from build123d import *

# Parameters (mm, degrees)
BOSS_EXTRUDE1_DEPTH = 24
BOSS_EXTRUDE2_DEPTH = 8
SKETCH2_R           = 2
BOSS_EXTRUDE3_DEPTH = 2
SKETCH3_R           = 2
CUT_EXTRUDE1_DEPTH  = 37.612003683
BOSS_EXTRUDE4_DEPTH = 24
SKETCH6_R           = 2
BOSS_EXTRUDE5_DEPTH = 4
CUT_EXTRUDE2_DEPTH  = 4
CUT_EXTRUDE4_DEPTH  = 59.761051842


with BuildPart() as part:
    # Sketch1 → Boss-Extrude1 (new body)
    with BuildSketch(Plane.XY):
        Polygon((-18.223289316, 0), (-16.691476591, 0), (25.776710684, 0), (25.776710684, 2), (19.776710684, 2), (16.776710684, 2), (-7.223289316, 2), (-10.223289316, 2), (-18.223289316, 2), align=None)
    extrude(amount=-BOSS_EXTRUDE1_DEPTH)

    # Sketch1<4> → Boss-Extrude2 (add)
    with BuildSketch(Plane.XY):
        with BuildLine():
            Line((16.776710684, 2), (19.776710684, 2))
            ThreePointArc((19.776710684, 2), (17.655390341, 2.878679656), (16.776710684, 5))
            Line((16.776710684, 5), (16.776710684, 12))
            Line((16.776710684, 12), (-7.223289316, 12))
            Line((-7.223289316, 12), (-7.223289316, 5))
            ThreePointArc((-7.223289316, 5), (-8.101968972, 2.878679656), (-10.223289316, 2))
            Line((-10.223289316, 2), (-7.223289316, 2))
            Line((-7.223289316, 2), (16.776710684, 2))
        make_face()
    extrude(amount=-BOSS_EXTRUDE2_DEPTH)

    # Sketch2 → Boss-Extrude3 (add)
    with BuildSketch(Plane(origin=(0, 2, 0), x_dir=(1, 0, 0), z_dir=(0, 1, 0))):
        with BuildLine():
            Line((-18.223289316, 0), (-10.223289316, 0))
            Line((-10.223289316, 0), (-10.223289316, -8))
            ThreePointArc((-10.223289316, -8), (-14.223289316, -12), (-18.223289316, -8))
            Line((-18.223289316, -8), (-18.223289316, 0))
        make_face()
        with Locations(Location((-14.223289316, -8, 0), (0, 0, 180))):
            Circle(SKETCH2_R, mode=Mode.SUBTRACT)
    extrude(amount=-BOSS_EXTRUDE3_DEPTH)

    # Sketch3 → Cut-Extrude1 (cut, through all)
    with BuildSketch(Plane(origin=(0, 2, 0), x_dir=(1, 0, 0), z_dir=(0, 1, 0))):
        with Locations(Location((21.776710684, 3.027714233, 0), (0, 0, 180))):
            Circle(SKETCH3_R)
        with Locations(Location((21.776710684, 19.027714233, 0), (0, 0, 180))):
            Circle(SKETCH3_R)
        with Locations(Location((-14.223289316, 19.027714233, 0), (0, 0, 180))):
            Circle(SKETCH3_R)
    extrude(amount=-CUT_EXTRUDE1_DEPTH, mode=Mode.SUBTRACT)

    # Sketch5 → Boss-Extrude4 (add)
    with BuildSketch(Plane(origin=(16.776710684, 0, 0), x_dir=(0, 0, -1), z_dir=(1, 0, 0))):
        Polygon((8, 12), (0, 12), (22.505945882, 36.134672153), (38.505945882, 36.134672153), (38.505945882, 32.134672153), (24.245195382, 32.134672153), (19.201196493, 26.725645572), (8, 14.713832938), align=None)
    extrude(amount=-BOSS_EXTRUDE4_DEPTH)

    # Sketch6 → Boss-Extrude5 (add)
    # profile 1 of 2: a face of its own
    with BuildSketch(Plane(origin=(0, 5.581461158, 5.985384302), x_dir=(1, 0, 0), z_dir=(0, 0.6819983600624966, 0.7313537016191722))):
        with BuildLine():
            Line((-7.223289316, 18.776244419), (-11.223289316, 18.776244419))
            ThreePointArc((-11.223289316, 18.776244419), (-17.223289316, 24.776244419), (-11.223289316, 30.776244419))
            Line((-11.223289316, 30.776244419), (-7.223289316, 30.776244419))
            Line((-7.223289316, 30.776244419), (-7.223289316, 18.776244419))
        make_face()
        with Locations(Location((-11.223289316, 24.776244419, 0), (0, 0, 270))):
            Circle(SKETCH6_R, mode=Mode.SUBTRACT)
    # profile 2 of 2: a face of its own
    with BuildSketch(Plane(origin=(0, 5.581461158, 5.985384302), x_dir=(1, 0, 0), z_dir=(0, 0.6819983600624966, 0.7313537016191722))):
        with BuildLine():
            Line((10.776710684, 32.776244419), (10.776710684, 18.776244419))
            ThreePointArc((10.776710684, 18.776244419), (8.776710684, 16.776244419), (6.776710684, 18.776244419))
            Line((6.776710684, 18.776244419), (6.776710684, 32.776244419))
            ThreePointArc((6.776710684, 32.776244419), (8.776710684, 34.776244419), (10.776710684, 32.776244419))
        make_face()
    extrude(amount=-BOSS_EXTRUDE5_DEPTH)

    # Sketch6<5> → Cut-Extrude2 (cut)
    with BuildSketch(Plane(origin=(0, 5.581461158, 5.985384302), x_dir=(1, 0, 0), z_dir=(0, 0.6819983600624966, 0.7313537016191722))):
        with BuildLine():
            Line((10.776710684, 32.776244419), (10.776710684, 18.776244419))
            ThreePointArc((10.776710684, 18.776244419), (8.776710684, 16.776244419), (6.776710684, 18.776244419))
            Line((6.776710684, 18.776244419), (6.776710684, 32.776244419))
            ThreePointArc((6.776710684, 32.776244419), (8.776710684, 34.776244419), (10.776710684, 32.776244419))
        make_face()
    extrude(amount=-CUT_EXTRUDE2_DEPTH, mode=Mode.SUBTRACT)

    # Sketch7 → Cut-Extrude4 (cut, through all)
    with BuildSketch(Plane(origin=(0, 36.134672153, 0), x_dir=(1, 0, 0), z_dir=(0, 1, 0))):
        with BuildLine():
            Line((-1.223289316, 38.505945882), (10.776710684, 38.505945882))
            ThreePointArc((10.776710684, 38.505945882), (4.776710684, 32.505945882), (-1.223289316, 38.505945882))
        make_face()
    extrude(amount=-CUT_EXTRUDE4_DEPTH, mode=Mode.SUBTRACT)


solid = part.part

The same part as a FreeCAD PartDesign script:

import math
import FreeCAD as App
import Part
import Sketcher
Q = App.Units.Quantity

doc = App.newDocument("Part")
body = doc.addObject("PartDesign::Body", "Body")

# Sketch on XY plane
sketch1 = body.newObject("Sketcher::SketchObject", "Sketch")
sketch1.AttachmentSupport = (doc.getObject("XY_Plane"), [""])
sketch1.MapMode = "FlatFace"
sketch1.addGeometry(Part.LineSegment(App.Vector(-18.223289, 0, 0), App.Vector(25.776711, 0, 0)), False)
sketch1.addGeometry(Part.LineSegment(App.Vector(25.776711, 0, 0), App.Vector(25.776711, 2, 0)), False)
sketch1.addGeometry(Part.LineSegment(App.Vector(25.776711, 2, 0), App.Vector(-18.223289, 2, 0)), False)
sketch1.addGeometry(Part.LineSegment(App.Vector(-18.223289, 2, 0), App.Vector(-18.223289, 0, 0)), False)
sketch1.addConstraint(Sketcher.Constraint("Coincident", 0, 2, 1, 1))
sketch1.addConstraint(Sketcher.Constraint("Coincident", 1, 2, 2, 1))
sketch1.addConstraint(Sketcher.Constraint("Coincident", 2, 2, 3, 1))
sketch1.addConstraint(Sketcher.Constraint("Coincident", 3, 2, 0, 1))
sketch1.addConstraint(Sketcher.Constraint("Horizontal", 0))
sketch1.addConstraint(Sketcher.Constraint("Vertical", 1))
sketch1.addConstraint(Sketcher.Constraint("Horizontal", 2))
sketch1.addConstraint(Sketcher.Constraint("Vertical", 3))
sketch1.addConstraint(Sketcher.Constraint("PointOnObject", 0, 2, -1))
sketch1.addConstraint(Sketcher.Constraint("DistanceX", 0, 1, 0, 2, Q("44 mm")))
sketch1.addConstraint(Sketcher.Constraint("DistanceY", 1, 1, 1, 2, Q("2 mm")))
sketch1.addConstraint(Sketcher.Constraint("DistanceX", -1, 1, 0, 2, Q("25.776711 mm")))
pad1 = body.newObject("PartDesign::Pad", "Pad")
pad1.Profile = sketch1
pad1.Length = 24
pad1.Reversed = True

# Sketch on XY plane
sketch2 = body.newObject("Sketcher::SketchObject", "Sketch001")
sketch2.AttachmentSupport = (doc.getObject("XY_Plane"), [""])
sketch2.MapMode = "FlatFace"
sketch2.addGeometry(Part.ArcOfCircle(Part.Circle(App.Vector(19.776711, 5, 0), App.Vector(0, 0, 1), 3), math.radians(180), math.radians(270)), False)
sketch2.addGeometry(Part.LineSegment(App.Vector(16.776711, 5, 0), App.Vector(16.776711, 12, 0)), False)
sketch2.addGeometry(Part.LineSegment(App.Vector(16.776711, 12, 0), App.Vector(-7.223289, 12, 0)), False)
sketch2.addGeometry(Part.LineSegment(App.Vector(-7.223289, 12, 0), App.Vector(-7.223289, 5, 0)), False)
sketch2.addGeometry(Part.ArcOfCircle(Part.Circle(App.Vector(-10.223289, 5, 0), App.Vector(0, 0, 1), 3), math.radians(-90), math.radians(0)), False)
sketch2.addGeometry(Part.LineSegment(App.Vector(-10.223289, 2, 0), App.Vector(19.776711, 2, 0)), False)
sketch2.addConstraint(Sketcher.Constraint("Tangent", 0, 1, 1, 1))
sketch2.addConstraint(Sketcher.Constraint("Coincident", 1, 2, 2, 1))
sketch2.addConstraint(Sketcher.Constraint("Coincident", 2, 2, 3, 1))
sketch2.addConstraint(Sketcher.Constraint("Tangent", 3, 2, 4, 2))
sketch2.addConstraint(Sketcher.Constraint("Tangent", 4, 1, 5, 1))
sketch2.addConstraint(Sketcher.Constraint("Tangent", 5, 2, 0, 2))
sketch2.addConstraint(Sketcher.Constraint("Vertical", 1))
sketch2.addConstraint(Sketcher.Constraint("Horizontal", 2))
sketch2.addConstraint(Sketcher.Constraint("Vertical", 3))
sketch2.addConstraint(Sketcher.Constraint("Horizontal", 5))
sketch2.addConstraint(Sketcher.Constraint("Equal", 0, 4))
sketch2.addConstraint(Sketcher.Constraint("Radius", 0, Q("3 mm")))
sketch2.addConstraint(Sketcher.Constraint("DistanceX", 2, 2, 2, 1, Q("24 mm")))
sketch2.addConstraint(Sketcher.Constraint("DistanceY", 1, 1, 1, 2, Q("7 mm")))
sketch2.addConstraint(Sketcher.Constraint("DistanceY", -1, 1, 0, 3, Q("5 mm")))
sketch2.addConstraint(Sketcher.Constraint("DistanceX", -1, 1, 0, 3, Q("19.776711 mm")))
pad2 = body.newObject("PartDesign::Pad", "Pad001")
pad2.Profile = sketch2
pad2.Length = 8
pad2.Reversed = True

# Sketch on XZ plane
sketch3 = body.newObject("Sketcher::SketchObject", "Sketch002")
sketch3.AttachmentSupport = (doc.getObject("XZ_Plane"), [""])
sketch3.MapMode = "FlatFace"
sketch3.AttachmentOffset = App.Placement(App.Vector(0, 0, -2), App.Rotation())
sketch3.addGeometry(Part.LineSegment(App.Vector(-10.223289, 0, 0), App.Vector(-18.223289, 0, 0)), False)
sketch3.addGeometry(Part.LineSegment(App.Vector(-18.223289, 0, 0), App.Vector(-18.223289, 8, 0)), False)
sketch3.addGeometry(Part.ArcOfCircle(Part.Circle(App.Vector(-14.223289, 8, 0), App.Vector(0, 0, 1), 4), math.radians(0), math.radians(180)), False)
sketch3.addGeometry(Part.LineSegment(App.Vector(-10.223289, 8, 0), App.Vector(-10.223289, 0, 0)), False)
sketch3.addGeometry(Part.Circle(App.Vector(-14.223289, 8, 0), App.Vector(0, 0, 1), 2), False)
sketch3.addConstraint(Sketcher.Constraint("Coincident", 0, 2, 1, 1))
sketch3.addConstraint(Sketcher.Constraint("Tangent", 1, 2, 2, 2))
sketch3.addConstraint(Sketcher.Constraint("Tangent", 2, 1, 3, 1))
sketch3.addConstraint(Sketcher.Constraint("Coincident", 3, 2, 0, 1))
sketch3.addConstraint(Sketcher.Constraint("Horizontal", 0))
sketch3.addConstraint(Sketcher.Constraint("Vertical", 1))
sketch3.addConstraint(Sketcher.Constraint("Vertical", 3))
sketch3.addConstraint(Sketcher.Constraint("Coincident", 4, 3, 2, 3))
sketch3.addConstraint(Sketcher.Constraint("PointOnObject", 0, 2, -1))
sketch3.addConstraint(Sketcher.Constraint("Equal", 0, 1))
sketch3.addConstraint(Sketcher.Constraint("Diameter", 4, Q("4 mm")))
sketch3.addConstraint(Sketcher.Constraint("Radius", 2, Q("4 mm")))
sketch3.addConstraint(Sketcher.Constraint("DistanceX", 2, 3, -1, 1, Q("14.223289 mm")))
pad3 = body.newObject("PartDesign::Pad", "Pad002")
pad3.Profile = sketch3
pad3.Length = 2

# Sketch on XZ plane
sketch4 = body.newObject("Sketcher::SketchObject", "Sketch003")
sketch4.AttachmentSupport = (doc.getObject("XZ_Plane"), [""])
sketch4.MapMode = "FlatFace"
sketch4.AttachmentOffset = App.Placement(App.Vector(0, 0, -2), App.Rotation())
sketch4.addGeometry(Part.Circle(App.Vector(21.776711, -3.027714, 0), App.Vector(0, 0, 1), 2), False)
sketch4.addGeometry(Part.Circle(App.Vector(21.776711, -19.027714, 0), App.Vector(0, 0, 1), 2), False)
sketch4.addGeometry(Part.Circle(App.Vector(-14.223289, -19.027714, 0), App.Vector(0, 0, 1), 2), False)
sketch4.addConstraint(Sketcher.Constraint("Equal", 0, 1))
sketch4.addConstraint(Sketcher.Constraint("Equal", 1, 2))
sketch4.addConstraint(Sketcher.Constraint("Horizontal", 1, 3, 2, 3))
sketch4.addConstraint(Sketcher.Constraint("Vertical", 0, 3, 1, 3))
sketch4.addConstraint(Sketcher.Constraint("Diameter", 0, Q("4 mm")))
sketch4.addConstraint(Sketcher.Constraint("DistanceY", 1, 3, 0, 3, Q("16 mm")))
sketch4.addConstraint(Sketcher.Constraint("DistanceX", 2, 3, 1, 3, Q("36 mm")))
sketch4.addConstraint(Sketcher.Constraint("DistanceX", -1, 1, 0, 3, Q("21.776711 mm")))
sketch4.addConstraint(Sketcher.Constraint("DistanceY", 0, 3, -1, 1, Q("3.027714 mm")))
pocket1 = body.newObject("PartDesign::Pocket", "Pocket")
pocket1.Profile = sketch4
pocket1.Type = "ThroughAll"
pocket1.Reversed = True

# Sketch on YZ plane
sketch5 = body.newObject("Sketcher::SketchObject", "Sketch004")
sketch5.AttachmentSupport = (doc.getObject("YZ_Plane"), [""])
sketch5.MapMode = "FlatFace"
sketch5.AttachmentOffset = App.Placement(App.Vector(0, 0, 16.776711), App.Rotation())
sketch5.addGeometry(Part.LineSegment(App.Vector(12, 0, 0), App.Vector(12, -8, 0)), False)
sketch5.addGeometry(Part.LineSegment(App.Vector(12, -8, 0), App.Vector(14.713833, -8, 0)), False)
sketch5.addGeometry(Part.LineSegment(App.Vector(14.713833, -8, 0), App.Vector(26.725646, -19.201196, 0)), False)
sketch5.addGeometry(Part.LineSegment(App.Vector(26.725646, -19.201196, 0), App.Vector(32.134672, -24.245195, 0)), False)
sketch5.addGeometry(Part.LineSegment(App.Vector(32.134672, -24.245195, 0), App.Vector(32.134672, -38.505946, 0)), False)
sketch5.addGeometry(Part.LineSegment(App.Vector(32.134672, -38.505946, 0), App.Vector(36.134672, -38.505946, 0)), False)
sketch5.addGeometry(Part.LineSegment(App.Vector(36.134672, -38.505946, 0), App.Vector(36.134672, -22.505946, 0)), False)
sketch5.addGeometry(Part.LineSegment(App.Vector(36.134672, -22.505946, 0), App.Vector(12, 0, 0)), False)
sketch5.addConstraint(Sketcher.Constraint("Coincident", 0, 2, 1, 1))
sketch5.addConstraint(Sketcher.Constraint("Coincident", 1, 2, 2, 1))
sketch5.addConstraint(Sketcher.Constraint("Coincident", 2, 2, 3, 1))
sketch5.addConstraint(Sketcher.Constraint("Coincident", 3, 2, 4, 1))
sketch5.addConstraint(Sketcher.Constraint("Coincident", 4, 2, 5, 1))
sketch5.addConstraint(Sketcher.Constraint("Coincident", 5, 2, 6, 1))
sketch5.addConstraint(Sketcher.Constraint("Coincident", 6, 2, 7, 1))
sketch5.addConstraint(Sketcher.Constraint("Coincident", 7, 2, 0, 1))
sketch5.addConstraint(Sketcher.Constraint("Vertical", 0))
sketch5.addConstraint(Sketcher.Constraint("Horizontal", 1))
sketch5.addConstraint(Sketcher.Constraint("Vertical", 4))
sketch5.addConstraint(Sketcher.Constraint("Horizontal", 5))
sketch5.addConstraint(Sketcher.Constraint("Vertical", 6))
sketch5.addConstraint(Sketcher.Constraint("PointOnObject", 7, 2, -1))
sketch5.addConstraint(Sketcher.Constraint("Parallel", 2, 3))
sketch5.addConstraint(Sketcher.Constraint("Parallel", 3, 7))
sketch5.addConstraint(Sketcher.Constraint("DistanceX", 5, 1, 5, 2, Q("4 mm")))
sketch5.addConstraint(Sketcher.Constraint("DistanceY", 0, 2, 0, 1, Q("8 mm")))
sketch5.addConstraint(Sketcher.Constraint("DistanceY", 6, 1, 6, 2, Q("16 mm")))
sketch5.addConstraint(Sketcher.Constraint("Angle", 2, Q("-43 deg")))
sketch5.addConstraint(Sketcher.Constraint("Distance", 7, Q("33 mm")))
sketch5.addConstraint(Sketcher.Constraint("DistanceX", -1, 1, 0, 2, Q("12 mm")))
sketch5.addConstraint(Sketcher.Constraint("DistanceY", 3, 2, 2, 2, Q("5.043999 mm")))
sketch5.addConstraint(Sketcher.Constraint("DistanceY", 4, 2, 4, 1, Q("14.260751 mm")))
pad4 = body.newObject("PartDesign::Pad", "Pad003")
pad4.Profile = sketch5
pad4.Length = 24
pad4.Reversed = True

# Sketch on an angled plane
sketch6 = body.newObject("Sketcher::SketchObject", "Sketch005")
sketch6.Placement = App.Placement(App.Vector(0, 5.581461, 5.985384), App.Rotation(App.Vector(1, 0, 0), App.Vector(0, 0.731353702, -0.68199836), App.Vector(0, 0.68199836, 0.731353702), "ZXY"))
sketch6.addGeometry(Part.LineSegment(App.Vector(-11.223289, 18.776244, 0), App.Vector(-7.223289, 18.776244, 0)), False)
sketch6.addGeometry(Part.LineSegment(App.Vector(-7.223289, 18.776244, 0), App.Vector(-7.223289, 30.776244, 0)), False)
sketch6.addGeometry(Part.LineSegment(App.Vector(-7.223289, 30.776244, 0), App.Vector(-11.223289, 30.776244, 0)), False)
sketch6.addGeometry(Part.ArcOfCircle(Part.Circle(App.Vector(-11.223289, 24.776244, 0), App.Vector(0, 0, 1), 6), math.radians(90), math.radians(270)), False)
sketch6.addGeometry(Part.Circle(App.Vector(-11.223289, 24.776244, 0), App.Vector(0, 0, 1), 2), False)
sketch6.addGeometry(Part.LineSegment(App.Vector(10.776711, 18.776244, 0), App.Vector(10.776711, 32.776244, 0)), False)
sketch6.addGeometry(Part.ArcOfCircle(Part.Circle(App.Vector(8.776711, 32.776244, 0), App.Vector(0, 0, 1), 2), math.radians(0), math.radians(180)), False)
sketch6.addGeometry(Part.LineSegment(App.Vector(6.776711, 32.776244, 0), App.Vector(6.776711, 18.776244, 0)), False)
sketch6.addGeometry(Part.ArcOfCircle(Part.Circle(App.Vector(8.776711, 18.776244, 0), App.Vector(0, 0, 1), 2), math.radians(180), math.radians(360)), False)
sketch6.addConstraint(Sketcher.Constraint("Coincident", 0, 2, 1, 1))
sketch6.addConstraint(Sketcher.Constraint("Coincident", 1, 2, 2, 1))
sketch6.addConstraint(Sketcher.Constraint("Tangent", 2, 2, 3, 1))
sketch6.addConstraint(Sketcher.Constraint("Tangent", 3, 2, 0, 1))
sketch6.addConstraint(Sketcher.Constraint("Tangent", 5, 2, 6, 1))
sketch6.addConstraint(Sketcher.Constraint("Tangent", 6, 2, 7, 1))
sketch6.addConstraint(Sketcher.Constraint("Tangent", 7, 2, 8, 1))
sketch6.addConstraint(Sketcher.Constraint("Tangent", 8, 2, 5, 1))
sketch6.addConstraint(Sketcher.Constraint("Horizontal", 0))
sketch6.addConstraint(Sketcher.Constraint("Vertical", 1))
sketch6.addConstraint(Sketcher.Constraint("Horizontal", 2))
sketch6.addConstraint(Sketcher.Constraint("Vertical", 5))
sketch6.addConstraint(Sketcher.Constraint("Vertical", 7))
sketch6.addConstraint(Sketcher.Constraint("Coincident", 4, 3, 3, 3))
sketch6.addConstraint(Sketcher.Constraint("Equal", 4, 6))
sketch6.addConstraint(Sketcher.Constraint("Horizontal", 8, 3, 0, 2))
sketch6.addConstraint(Sketcher.Constraint("Diameter", 4, Q("4 mm")))
sketch6.addConstraint(Sketcher.Constraint("Radius", 3, Q("6 mm")))
sketch6.addConstraint(Sketcher.Constraint("DistanceX", 0, 1, 0, 2, Q("4 mm")))
sketch6.addConstraint(Sketcher.Constraint("DistanceY", 5, 1, 5, 2, Q("14 mm")))
sketch6.addConstraint(Sketcher.Constraint("DistanceX", 3, 3, 6, 3, Q("20 mm")))
sketch6.addConstraint(Sketcher.Constraint("DistanceX", 3, 3, -1, 1, Q("11.223289 mm")))
sketch6.addConstraint(Sketcher.Constraint("DistanceY", -1, 1, 3, 3, Q("24.776244 mm")))
pad5 = body.newObject("PartDesign::Pad", "Pad004")
pad5.Profile = sketch6
pad5.Length = 4
pad5.Reversed = True

# Sketch on an angled plane
sketch7 = body.newObject("Sketcher::SketchObject", "Sketch006")
sketch7.Placement = App.Placement(App.Vector(0, 5.581461, 5.985384), App.Rotation(App.Vector(1, 0, 0), App.Vector(0, 0.731353702, -0.68199836), App.Vector(0, 0.68199836, 0.731353702), "ZXY"))
sketch7.addGeometry(Part.LineSegment(App.Vector(10.776711, 18.776244, 0), App.Vector(10.776711, 32.776244, 0)), False)
sketch7.addGeometry(Part.ArcOfCircle(Part.Circle(App.Vector(8.776711, 32.776244, 0), App.Vector(0, 0, 1), 2), math.radians(0), math.radians(180)), False)
sketch7.addGeometry(Part.LineSegment(App.Vector(6.776711, 32.776244, 0), App.Vector(6.776711, 18.776244, 0)), False)
sketch7.addGeometry(Part.ArcOfCircle(Part.Circle(App.Vector(8.776711, 18.776244, 0), App.Vector(0, 0, 1), 2), math.radians(180), math.radians(360)), False)
sketch7.addConstraint(Sketcher.Constraint("Tangent", 0, 2, 1, 1))
sketch7.addConstraint(Sketcher.Constraint("Tangent", 1, 2, 2, 1))
sketch7.addConstraint(Sketcher.Constraint("Tangent", 2, 2, 3, 1))
sketch7.addConstraint(Sketcher.Constraint("Tangent", 3, 2, 0, 1))
sketch7.addConstraint(Sketcher.Constraint("Vertical", 0))
sketch7.addConstraint(Sketcher.Constraint("Vertical", 2))
sketch7.addConstraint(Sketcher.Constraint("Radius", 1, Q("2 mm")))
sketch7.addConstraint(Sketcher.Constraint("DistanceY", 0, 1, 0, 2, Q("14 mm")))
sketch7.addConstraint(Sketcher.Constraint("DistanceX", -1, 1, 1, 3, Q("8.776711 mm")))
sketch7.addConstraint(Sketcher.Constraint("DistanceY", -1, 1, 1, 3, Q("32.776244 mm")))
pocket2 = body.newObject("PartDesign::Pocket", "Pocket001")
pocket2.Profile = sketch7
pocket2.Length = 4

# Sketch on XZ plane
sketch8 = body.newObject("Sketcher::SketchObject", "Sketch007")
sketch8.AttachmentSupport = (doc.getObject("XZ_Plane"), [""])
sketch8.MapMode = "FlatFace"
sketch8.AttachmentOffset = App.Placement(App.Vector(0, 0, -36.134672), App.Rotation())
sketch8.addGeometry(Part.LineSegment(App.Vector(10.776711, -38.505946, 0), App.Vector(-1.223289, -38.505946, 0)), False)
sketch8.addGeometry(Part.ArcOfCircle(Part.Circle(App.Vector(4.776711, -38.505946, 0), App.Vector(0, 0, 1), 6), math.radians(0), math.radians(180)), False)
sketch8.addConstraint(Sketcher.Constraint("Coincident", 0, 1, 1, 1))
sketch8.addConstraint(Sketcher.Constraint("Coincident", 1, 2, 0, 2))
sketch8.addConstraint(Sketcher.Constraint("Horizontal", 0))
sketch8.addConstraint(Sketcher.Constraint("Horizontal", 1, 3, 0, 1))
sketch8.addConstraint(Sketcher.Constraint("Radius", 1, Q("6 mm")))
sketch8.addConstraint(Sketcher.Constraint("DistanceX", -1, 1, 1, 3, Q("4.776711 mm")))
sketch8.addConstraint(Sketcher.Constraint("DistanceY", 1, 3, -1, 1, Q("38.505946 mm")))
pocket3 = body.newObject("PartDesign::Pocket", "Pocket002")
pocket3.Profile = sketch8
pocket3.Type = "ThroughAll"
pocket3.Reversed = True

doc.recompute()
